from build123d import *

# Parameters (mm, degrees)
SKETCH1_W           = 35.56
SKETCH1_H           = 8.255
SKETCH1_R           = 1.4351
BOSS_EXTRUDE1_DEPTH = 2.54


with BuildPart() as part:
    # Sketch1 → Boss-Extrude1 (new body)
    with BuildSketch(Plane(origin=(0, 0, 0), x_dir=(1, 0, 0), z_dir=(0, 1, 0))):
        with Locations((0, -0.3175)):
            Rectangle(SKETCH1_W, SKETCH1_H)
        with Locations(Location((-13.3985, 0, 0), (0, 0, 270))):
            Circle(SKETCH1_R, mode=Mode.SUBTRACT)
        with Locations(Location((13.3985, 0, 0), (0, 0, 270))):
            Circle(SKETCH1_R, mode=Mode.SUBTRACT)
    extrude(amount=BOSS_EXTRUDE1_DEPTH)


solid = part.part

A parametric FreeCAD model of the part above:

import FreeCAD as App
import Part
import Sketcher
Q = App.Units.Quantity

doc = App.newDocument("Part")
body = doc.addObject("PartDesign::Body", "Body")

# Sketch on XZ plane
sketch1 = body.newObject("Sketcher::SketchObject", "Sketch")
sketch1.AttachmentSupport = (doc.getObject("XZ_Plane"), [""])
sketch1.MapMode = "FlatFace"
sketch1.addGeometry([
    Part.LineSegment(App.Vector(-17.8, -3.8, 0), App.Vector(-17.8, 4.4, 0)),  # 0
    Part.LineSegment(App.Vector(-17.8, 4.4, 0), App.Vector(17.8, 4.4, 0)),  # 1
    Part.LineSegment(App.Vector(17.8, 4.4, 0), App.Vector(17.8, -3.8, 0)),  # 2
    Part.LineSegment(App.Vector(17.8, -3.8, 0), App.Vector(-17.8, -3.8, 0)),  # 3
    Part.Circle(App.Vector(-13.4, 0, 0), App.Vector(0, 0, 1), 1.4),  # 4
    Part.Circle(App.Vector(13.4, 0, 0), App.Vector(0, 0, 1), 1.4),  # 5
], False)
sketch1.addConstraint([
    Sketcher.Constraint("Coincident", 0, 2, 1, 1),
    Sketcher.Constraint("Coincident", 1, 2, 2, 1),
    Sketcher.Constraint("Coincident", 2, 2, 3, 1),
    Sketcher.Constraint("Coincident", 3, 2, 0, 1),
    Sketcher.Constraint("Vertical", 0),
    Sketcher.Constraint("Horizontal", 1),
    Sketcher.Constraint("Vertical", 2),
    Sketcher.Constraint("Horizontal", 3),
    Sketcher.Constraint("Equal", 4, 5),
    Sketcher.Constraint("Symmetric", 4, 3, 5, 3, -1, 1),
    Sketcher.Constraint("PointOnObject", 4, 3, -1),
    Sketcher.Constraint("Diameter", 4, Q("0.113 in")),
    Sketcher.Constraint("DistanceX", 1, 1, 1, 2, Q("1.4 in")),
    Sketcher.Constraint("DistanceX", 0, 2, -1, 1, Q("0.7 in")),
    Sketcher.Constraint("DistanceY", 0, 1, 0, 2, Q("0.325 in")),
    Sketcher.Constraint("DistanceY", 2, 2, -1, 1, Q("0.15 in")),
    Sketcher.Constraint("DistanceX", 4, 3, 5, 3, Q("1.055 in")),
])
pad1 = body.newObject("PartDesign::Pad", "Pad")
pad1.Profile = sketch1
pad1.Length = Q("0.1 in")
pad1.Reversed = True

doc.recompute()
